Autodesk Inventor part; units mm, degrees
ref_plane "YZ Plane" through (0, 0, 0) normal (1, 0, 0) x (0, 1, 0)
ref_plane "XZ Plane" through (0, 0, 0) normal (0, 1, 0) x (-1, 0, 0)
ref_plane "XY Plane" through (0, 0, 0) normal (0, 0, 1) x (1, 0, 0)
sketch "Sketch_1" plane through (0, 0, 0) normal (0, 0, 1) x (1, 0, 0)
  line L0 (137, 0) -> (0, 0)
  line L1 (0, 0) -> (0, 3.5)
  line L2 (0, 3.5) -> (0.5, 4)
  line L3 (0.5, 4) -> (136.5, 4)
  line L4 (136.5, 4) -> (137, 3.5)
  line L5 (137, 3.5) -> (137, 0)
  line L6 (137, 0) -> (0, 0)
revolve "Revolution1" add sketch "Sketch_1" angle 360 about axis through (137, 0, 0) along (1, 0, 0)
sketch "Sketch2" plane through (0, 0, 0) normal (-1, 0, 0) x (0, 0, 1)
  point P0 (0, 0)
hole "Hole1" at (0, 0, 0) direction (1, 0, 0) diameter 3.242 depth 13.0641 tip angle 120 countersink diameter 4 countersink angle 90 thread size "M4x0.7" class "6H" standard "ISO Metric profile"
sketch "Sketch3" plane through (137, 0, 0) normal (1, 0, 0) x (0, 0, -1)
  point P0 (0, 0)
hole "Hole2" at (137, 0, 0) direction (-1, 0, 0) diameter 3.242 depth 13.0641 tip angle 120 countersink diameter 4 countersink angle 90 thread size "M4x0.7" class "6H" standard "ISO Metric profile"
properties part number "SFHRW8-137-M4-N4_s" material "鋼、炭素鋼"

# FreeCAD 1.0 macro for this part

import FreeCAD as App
import Part
import Sketcher

V = App.Vector
Q = App.Units.Quantity


def add_polygon(sketch, points):
    """Adds a closed chain of lines whose ends are joined by coincident constraints."""
    first, n = sketch.GeometryCount, len(points)
    for a, b in zip(points, points[1:] + points[:1]):
        sketch.addGeometry(Part.LineSegment(App.Vector(*a, 0), App.Vector(*b, 0)), False)
    for i in range(n):
        sketch.addConstraint(Sketcher.Constraint("Coincident", first + i, 2, first + (i + 1) % n, 1))

doc = App.newDocument("Part")
body = doc.addObject("PartDesign::Body", "Body")

sketch1 = body.newObject("Sketcher::SketchObject", "Sketch")
sketch1.AttachmentSupport = (doc.getObject("XY_Plane"), [""])
sketch1.MapMode = "FlatFace"
add_polygon(sketch1, [(0, 0), (137, 0), (137, 3.5), (136.5, 4), (0.5, 4), (0, 3.5)])
sketch1.addConstraint([
    Sketcher.Constraint("Horizontal", 0),
    Sketcher.Constraint("Vertical", 1),
    Sketcher.Constraint("Horizontal", 3),
    Sketcher.Constraint("Vertical", 5),
    Sketcher.Constraint("Coincident", 5, 2, -1, 1),
    Sketcher.Constraint("Perpendicular", 2, 4),
    Sketcher.Constraint("Horizontal", 1, 2, 4, 2),
    Sketcher.Constraint("Equal", 2, 4),
    Sketcher.Constraint("DistanceX", 0, 1, 0, 2, Q("137 mm")),
    Sketcher.Constraint("DistanceX", 3, 2, 3, 1, Q("136 mm")),
    Sketcher.Constraint("DistanceY", 1, 1, 1, 2, Q("3.5 mm")),
])
revolution = body.newObject("PartDesign::Revolution", "Revolution")
revolution.Profile = sketch1
revolution.ReferenceAxis = (sketch1, ["H_Axis"])
revolution.Angle = 360

sketch2 = body.newObject("Sketcher::SketchObject", "Sketch001")
sketch2.AttachmentSupport = (doc.getObject("YZ_Plane"), [""])
sketch2.MapMode = "FlatFace"
sketch2.addGeometry(Part.Circle(V(0, 0, 0), V(0, 0, 1), 1.6), False)
sketch2.addConstraint([
    Sketcher.Constraint("Coincident", 0, 3, -1, 1),
    Sketcher.Constraint("Diameter", 0, Q("3.242 mm")),
])
doc.recompute()
hole = body.newObject("PartDesign::Hole", "Hole")
hole.Profile = sketch2
hole.ThreadType = "None"
hole.Diameter = 3.242
hole.DepthType = "Dimension"
hole.Depth = 13.0641
hole.DrillPoint = "Angled"
hole.DrillPointAngle = 120
hole.HoleCutType = "Countersink"
hole.HoleCutDiameter = 4
hole.HoleCutCountersinkAngle = 90
hole.Reversed = True

sketch3 = body.newObject("Sketcher::SketchObject", "Sketch002")
sketch3.AttachmentSupport = (doc.getObject("YZ_Plane"), [""])
sketch3.MapMode = "FlatFace"
sketch3.AttachmentOffset = App.Placement(V(0, 0, 137), App.Rotation())
sketch3.addGeometry(Part.Circle(V(0, 0, 0), V(0, 0, 1), 1.6), False)
sketch3.addConstraint([
    Sketcher.Constraint("Coincident", 0, 3, -1, 1),
    Sketcher.Constraint("Diameter", 0, Q("3.242 mm")),
])
doc.recompute()
hole2 = body.newObject("PartDesign::Hole", "Hole001")
hole2.Profile = sketch3
hole2.ThreadType = "None"
hole2.Diameter = 3.242
hole2.DepthType = "Dimension"
hole2.Depth = 13.0641
hole2.DrillPoint = "Angled"
hole2.DrillPointAngle = 120
hole2.HoleCutType = "Countersink"
hole2.HoleCutDiameter = 4
hole2.HoleCutCountersinkAngle = 90

doc.recompute()
